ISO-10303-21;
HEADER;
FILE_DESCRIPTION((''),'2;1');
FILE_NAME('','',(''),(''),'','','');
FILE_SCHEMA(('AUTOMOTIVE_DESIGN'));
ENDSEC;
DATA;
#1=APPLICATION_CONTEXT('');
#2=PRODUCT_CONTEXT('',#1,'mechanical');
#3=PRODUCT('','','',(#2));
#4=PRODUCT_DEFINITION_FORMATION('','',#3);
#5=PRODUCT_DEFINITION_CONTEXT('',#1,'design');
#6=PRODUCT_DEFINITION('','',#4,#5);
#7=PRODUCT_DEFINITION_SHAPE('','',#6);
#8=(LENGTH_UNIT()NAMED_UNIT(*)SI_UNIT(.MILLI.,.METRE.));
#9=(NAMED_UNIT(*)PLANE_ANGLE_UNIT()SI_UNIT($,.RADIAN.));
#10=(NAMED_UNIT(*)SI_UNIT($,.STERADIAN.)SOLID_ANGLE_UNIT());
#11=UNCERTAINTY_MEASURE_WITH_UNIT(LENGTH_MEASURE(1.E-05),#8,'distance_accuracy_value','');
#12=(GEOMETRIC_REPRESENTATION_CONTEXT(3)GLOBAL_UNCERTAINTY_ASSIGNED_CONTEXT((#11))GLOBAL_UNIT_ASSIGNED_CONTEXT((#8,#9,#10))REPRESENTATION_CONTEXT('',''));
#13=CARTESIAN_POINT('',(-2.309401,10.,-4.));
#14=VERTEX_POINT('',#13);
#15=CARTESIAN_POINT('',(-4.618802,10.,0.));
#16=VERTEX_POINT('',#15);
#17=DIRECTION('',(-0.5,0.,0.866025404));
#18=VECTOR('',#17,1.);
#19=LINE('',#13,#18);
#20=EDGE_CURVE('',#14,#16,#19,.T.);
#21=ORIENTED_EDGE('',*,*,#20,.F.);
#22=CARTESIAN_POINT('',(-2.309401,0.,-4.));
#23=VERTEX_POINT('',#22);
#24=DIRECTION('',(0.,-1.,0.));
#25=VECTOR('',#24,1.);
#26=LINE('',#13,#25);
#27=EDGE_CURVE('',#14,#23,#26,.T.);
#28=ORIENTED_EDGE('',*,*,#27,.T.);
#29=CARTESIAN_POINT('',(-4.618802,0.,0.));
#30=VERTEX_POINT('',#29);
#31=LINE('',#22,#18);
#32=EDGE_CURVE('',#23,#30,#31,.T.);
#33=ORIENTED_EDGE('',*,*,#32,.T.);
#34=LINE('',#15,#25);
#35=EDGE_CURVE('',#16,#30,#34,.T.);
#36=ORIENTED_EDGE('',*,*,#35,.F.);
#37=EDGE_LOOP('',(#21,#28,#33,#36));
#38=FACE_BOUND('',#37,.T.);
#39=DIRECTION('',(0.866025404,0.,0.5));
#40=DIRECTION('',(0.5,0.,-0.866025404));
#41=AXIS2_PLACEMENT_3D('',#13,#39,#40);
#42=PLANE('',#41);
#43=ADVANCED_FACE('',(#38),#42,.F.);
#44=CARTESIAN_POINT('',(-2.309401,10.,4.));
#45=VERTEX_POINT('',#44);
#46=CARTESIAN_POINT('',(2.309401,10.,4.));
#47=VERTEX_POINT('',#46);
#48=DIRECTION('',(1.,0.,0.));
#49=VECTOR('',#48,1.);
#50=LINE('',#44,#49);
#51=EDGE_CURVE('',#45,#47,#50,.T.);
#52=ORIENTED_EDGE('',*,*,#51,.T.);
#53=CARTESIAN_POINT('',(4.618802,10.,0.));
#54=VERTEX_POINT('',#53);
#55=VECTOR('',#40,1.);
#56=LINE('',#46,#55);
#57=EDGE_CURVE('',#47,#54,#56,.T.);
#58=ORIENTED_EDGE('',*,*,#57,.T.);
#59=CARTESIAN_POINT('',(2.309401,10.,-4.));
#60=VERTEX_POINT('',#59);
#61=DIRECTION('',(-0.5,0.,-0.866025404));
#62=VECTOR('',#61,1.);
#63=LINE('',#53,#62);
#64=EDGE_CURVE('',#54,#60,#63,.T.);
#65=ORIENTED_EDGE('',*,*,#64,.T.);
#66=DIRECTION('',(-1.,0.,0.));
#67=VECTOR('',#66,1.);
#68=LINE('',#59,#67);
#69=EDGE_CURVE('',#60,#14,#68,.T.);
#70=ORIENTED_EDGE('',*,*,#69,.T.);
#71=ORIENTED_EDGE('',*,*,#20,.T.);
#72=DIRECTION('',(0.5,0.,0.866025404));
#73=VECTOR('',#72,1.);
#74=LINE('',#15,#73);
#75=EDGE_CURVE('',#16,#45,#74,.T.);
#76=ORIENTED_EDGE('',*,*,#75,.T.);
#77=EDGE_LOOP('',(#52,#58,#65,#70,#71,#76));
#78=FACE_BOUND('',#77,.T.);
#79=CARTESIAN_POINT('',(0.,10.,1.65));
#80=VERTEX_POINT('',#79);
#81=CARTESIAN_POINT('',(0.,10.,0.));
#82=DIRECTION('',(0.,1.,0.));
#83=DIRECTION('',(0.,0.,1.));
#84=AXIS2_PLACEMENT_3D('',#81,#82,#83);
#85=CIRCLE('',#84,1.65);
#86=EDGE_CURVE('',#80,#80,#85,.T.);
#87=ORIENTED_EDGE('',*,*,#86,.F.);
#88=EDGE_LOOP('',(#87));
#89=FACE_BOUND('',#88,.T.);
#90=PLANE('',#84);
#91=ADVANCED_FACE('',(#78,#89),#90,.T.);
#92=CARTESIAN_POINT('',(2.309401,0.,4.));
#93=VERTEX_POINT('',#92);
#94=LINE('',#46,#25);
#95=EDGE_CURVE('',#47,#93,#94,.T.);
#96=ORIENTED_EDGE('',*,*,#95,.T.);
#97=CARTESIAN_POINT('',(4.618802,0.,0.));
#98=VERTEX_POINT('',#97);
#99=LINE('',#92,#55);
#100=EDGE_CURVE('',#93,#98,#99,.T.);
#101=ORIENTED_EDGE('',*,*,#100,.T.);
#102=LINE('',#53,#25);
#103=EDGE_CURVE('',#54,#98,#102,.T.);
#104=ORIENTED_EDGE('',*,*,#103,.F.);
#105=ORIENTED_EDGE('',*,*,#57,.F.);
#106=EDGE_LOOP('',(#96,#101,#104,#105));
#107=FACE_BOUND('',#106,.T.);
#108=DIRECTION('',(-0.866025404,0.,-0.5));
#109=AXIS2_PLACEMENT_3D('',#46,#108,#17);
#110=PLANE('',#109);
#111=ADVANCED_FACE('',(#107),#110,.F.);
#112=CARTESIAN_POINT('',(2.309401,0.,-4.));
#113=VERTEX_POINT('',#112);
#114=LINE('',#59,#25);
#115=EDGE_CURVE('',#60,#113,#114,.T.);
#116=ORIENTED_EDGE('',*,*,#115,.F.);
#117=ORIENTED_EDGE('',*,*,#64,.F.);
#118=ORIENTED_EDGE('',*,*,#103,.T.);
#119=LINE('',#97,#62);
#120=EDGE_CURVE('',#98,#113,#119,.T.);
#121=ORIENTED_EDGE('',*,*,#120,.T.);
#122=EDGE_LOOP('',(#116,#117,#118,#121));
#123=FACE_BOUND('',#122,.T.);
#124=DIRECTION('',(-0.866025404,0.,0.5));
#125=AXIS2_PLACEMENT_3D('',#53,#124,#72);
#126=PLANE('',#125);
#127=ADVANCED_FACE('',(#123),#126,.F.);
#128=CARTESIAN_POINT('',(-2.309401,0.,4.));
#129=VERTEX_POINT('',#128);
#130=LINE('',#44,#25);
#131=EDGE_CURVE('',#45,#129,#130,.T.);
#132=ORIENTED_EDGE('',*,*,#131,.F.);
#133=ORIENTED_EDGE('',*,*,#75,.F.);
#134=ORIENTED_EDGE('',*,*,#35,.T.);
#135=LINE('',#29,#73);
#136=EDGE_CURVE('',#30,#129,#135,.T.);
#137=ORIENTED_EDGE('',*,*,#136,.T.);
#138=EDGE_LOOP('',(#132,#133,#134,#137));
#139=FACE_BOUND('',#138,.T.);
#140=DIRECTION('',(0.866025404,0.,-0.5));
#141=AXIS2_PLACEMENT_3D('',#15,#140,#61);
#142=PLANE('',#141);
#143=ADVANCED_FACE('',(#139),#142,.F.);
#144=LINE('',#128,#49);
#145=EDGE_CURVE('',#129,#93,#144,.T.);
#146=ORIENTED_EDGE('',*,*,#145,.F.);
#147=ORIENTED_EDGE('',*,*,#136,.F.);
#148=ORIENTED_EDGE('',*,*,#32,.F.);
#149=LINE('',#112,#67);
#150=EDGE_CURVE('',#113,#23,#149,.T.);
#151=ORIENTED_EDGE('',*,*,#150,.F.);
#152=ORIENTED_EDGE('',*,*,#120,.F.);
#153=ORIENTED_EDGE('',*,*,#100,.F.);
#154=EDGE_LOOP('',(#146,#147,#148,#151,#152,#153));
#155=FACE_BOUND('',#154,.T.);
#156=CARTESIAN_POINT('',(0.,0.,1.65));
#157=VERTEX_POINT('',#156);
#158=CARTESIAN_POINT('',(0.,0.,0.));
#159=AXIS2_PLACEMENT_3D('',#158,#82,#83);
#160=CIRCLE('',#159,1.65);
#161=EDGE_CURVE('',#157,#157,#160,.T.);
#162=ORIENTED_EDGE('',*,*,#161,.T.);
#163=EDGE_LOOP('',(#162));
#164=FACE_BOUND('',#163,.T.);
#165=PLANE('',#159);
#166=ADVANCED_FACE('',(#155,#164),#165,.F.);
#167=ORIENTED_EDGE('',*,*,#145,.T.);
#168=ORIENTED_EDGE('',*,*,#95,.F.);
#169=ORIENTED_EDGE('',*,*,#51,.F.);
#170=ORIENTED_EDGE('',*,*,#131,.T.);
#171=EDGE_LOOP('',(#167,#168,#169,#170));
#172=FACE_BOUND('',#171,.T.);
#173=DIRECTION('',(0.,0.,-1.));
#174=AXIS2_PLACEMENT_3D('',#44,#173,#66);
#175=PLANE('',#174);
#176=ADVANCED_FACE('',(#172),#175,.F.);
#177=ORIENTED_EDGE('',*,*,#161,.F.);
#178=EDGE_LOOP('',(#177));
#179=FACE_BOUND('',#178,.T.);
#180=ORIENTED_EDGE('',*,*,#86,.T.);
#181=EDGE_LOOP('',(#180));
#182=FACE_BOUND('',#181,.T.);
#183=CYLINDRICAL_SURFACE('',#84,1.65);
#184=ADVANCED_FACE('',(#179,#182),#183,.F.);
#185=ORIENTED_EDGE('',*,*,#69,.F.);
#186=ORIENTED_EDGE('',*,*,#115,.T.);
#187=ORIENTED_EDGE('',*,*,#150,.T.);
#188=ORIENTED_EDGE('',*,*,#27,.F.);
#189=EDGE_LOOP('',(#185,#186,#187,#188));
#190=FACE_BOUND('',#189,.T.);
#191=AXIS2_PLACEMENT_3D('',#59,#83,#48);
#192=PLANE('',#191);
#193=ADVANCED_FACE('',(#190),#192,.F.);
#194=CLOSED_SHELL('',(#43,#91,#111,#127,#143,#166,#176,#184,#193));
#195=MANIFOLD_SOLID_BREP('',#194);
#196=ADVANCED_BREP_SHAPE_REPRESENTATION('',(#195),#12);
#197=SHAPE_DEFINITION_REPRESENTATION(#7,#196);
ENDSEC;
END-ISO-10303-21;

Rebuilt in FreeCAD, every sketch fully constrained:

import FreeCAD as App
import Part
import Sketcher
from FreeCAD import Vector
Q = App.Units.Quantity

doc = App.newDocument("Part")
params = doc.addObject("Spreadsheet::Sheet", "Params")
for row, (alias, value) in enumerate([
    ("pad1_length", "10 mm"),
    ("sketch2_diameter", "3.3 mm"),
    ("hole_diameter", "3.3 mm"),
    ("hole_depth", "14.1 mm"),
], start=1):
    params.set(f"A{row}", alias)
    params.set(f"B{row}", "=" + value)
    params.setAlias(f"B{row}", alias)

body = doc.addObject("PartDesign::Body", "Body")

sketch1 = body.newObject("Sketcher::SketchObject", "Sketch")
sketch1.AttachmentSupport = (doc.getObject("XZ_Plane"), [""])
sketch1.MapMode = "FlatFace"
sketch1.addGeometry(Part.LineSegment(Vector(2.3, -4, 0), Vector(-2.3, -4, 0)), False)
sketch1.addGeometry(Part.LineSegment(Vector(-2.3, -4, 0), Vector(-4.6, 0, 0)), False)
sketch1.addGeometry(Part.LineSegment(Vector(-4.6, 0, 0), Vector(-2.3, 4, 0)), False)
sketch1.addGeometry(Part.LineSegment(Vector(-2.3, 4, 0), Vector(2.3, 4, 0)), False)
sketch1.addGeometry(Part.LineSegment(Vector(2.3, 4, 0), Vector(4.6, 0, 0)), False)
sketch1.addGeometry(Part.LineSegment(Vector(4.6, 0, 0), Vector(2.3, -4, 0)), False)
sketch1.addConstraint(Sketcher.Constraint("Coincident", 0, 2, 1, 1))
sketch1.addConstraint(Sketcher.Constraint("Coincident", 1, 2, 2, 1))
sketch1.addConstraint(Sketcher.Constraint("Coincident", 2, 2, 3, 1))
sketch1.addConstraint(Sketcher.Constraint("Coincident", 3, 2, 4, 1))
sketch1.addConstraint(Sketcher.Constraint("Coincident", 4, 2, 5, 1))
sketch1.addConstraint(Sketcher.Constraint("Coincident", 5, 2, 0, 1))
sketch1.addConstraint(Sketcher.Constraint("Horizontal", 0))
sketch1.addConstraint(Sketcher.Constraint("Horizontal", 3))
sketch1.addConstraint(Sketcher.Constraint("Symmetric", 0, 2, 3, 2, -1, 1))
sketch1.addConstraint(Sketcher.Constraint("Symmetric", 1, 2, 4, 2, -1, 1))
sketch1.addConstraint(Sketcher.Constraint("PointOnObject", 1, 2, -1))
sketch1.addConstraint(Sketcher.Constraint("Parallel", 2, 5))
sketch1.addConstraint(Sketcher.Constraint("Vertical", 0, 2, 2, 2))
sketch1.addConstraint(Sketcher.Constraint("Angle", 1, Q("120 deg")))
sketch1.addConstraint(Sketcher.Constraint("DistanceY", 0, 2, -1, 1, Q("4 mm")))
sketch1.addConstraint(Sketcher.Constraint("DistanceX", 0, 2, -1, 1, Q("2.309401 mm")))
pad1 = body.newObject("PartDesign::Pad", "Pad")
pad1.Profile = sketch1
pad1.setExpression("Length", "Params.pad1_length")
pad1.Reversed = True

sketch2 = body.newObject("Sketcher::SketchObject", "Sketch001")
sketch2.AttachmentSupport = (doc.getObject("XZ_Plane"), [""])
sketch2.MapMode = "FlatFace"
sketch2.AttachmentOffset = App.Placement(Vector(0, 0, -10), App.Rotation())
sketch2.addGeometry(Part.Circle(Vector(0, 0, 0), Vector(0, 0, 1), 1.6), False)
sketch2.addConstraint(Sketcher.Constraint("Coincident", 0, 3, -1, 1))
sketch2.addConstraint(Sketcher.Constraint("Diameter", 0, Q("3.3 mm")))
sketch2.setExpression("Constraints[1]", "Params.sketch2_diameter")
doc.recompute()
hole = body.newObject("PartDesign::Hole", "Hole")
hole.Profile = sketch2
hole.ThreadType = "None"
hole.setExpression("Diameter", "Params.hole_diameter")
hole.DepthType = "Dimension"
hole.setExpression("Depth", "Params.hole_depth")
hole.DrillPoint = "Angled"
hole.DrillPointAngle = 118
hole.Reversed = True

doc.recompute()
